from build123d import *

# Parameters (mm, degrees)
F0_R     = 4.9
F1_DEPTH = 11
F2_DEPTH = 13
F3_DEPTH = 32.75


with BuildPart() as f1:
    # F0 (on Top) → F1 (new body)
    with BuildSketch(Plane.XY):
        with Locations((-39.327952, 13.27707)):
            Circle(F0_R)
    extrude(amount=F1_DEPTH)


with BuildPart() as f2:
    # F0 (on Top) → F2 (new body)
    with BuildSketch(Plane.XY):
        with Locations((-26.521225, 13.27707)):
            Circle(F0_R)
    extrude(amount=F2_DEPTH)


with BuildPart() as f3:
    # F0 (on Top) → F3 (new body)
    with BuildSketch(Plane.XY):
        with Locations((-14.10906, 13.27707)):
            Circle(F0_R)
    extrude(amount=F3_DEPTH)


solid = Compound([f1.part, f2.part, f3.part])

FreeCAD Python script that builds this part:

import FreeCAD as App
import Part
import Sketcher

doc = App.newDocument("Part")
body = doc.addObject("PartDesign::Body", "Body")

sketch1 = doc.addObject("Sketcher::SketchObject", "Sketch")
body.addObject(sketch1)
sketch1.AttachmentSupport = (doc.XY_Plane, [""])
sketch1.MapMode = "FlatFace"
sketch1.addGeometry(Part.Circle(App.Vector(-39.327952, 13.27707, 0), App.Vector(0, 0, 1), 4.9), False)
sketch1.addConstraint([
    Sketcher.Constraint("Diameter", 0, 9.8),
    Sketcher.Constraint("DistanceY", -1, 1, 0, 3, 13.27707),
    Sketcher.Constraint("DistanceX", 0, 3, -1, 1, 39.327952),
])
pad1 = doc.addObject("PartDesign::Pad", "Pad")
body.addObject(pad1)
pad1.Profile = sketch1
pad1.Length = 11
body2 = doc.addObject("PartDesign::Body", "Body001")

sketch2 = doc.addObject("Sketcher::SketchObject", "Sketch001")
body2.addObject(sketch2)
sketch2.AttachmentSupport = (doc.getObject("XY_Plane001"), [""])
sketch2.MapMode = "FlatFace"
sketch2.addGeometry(Part.Circle(App.Vector(-26.521225, 13.27707, 0), App.Vector(0, 0, 1), 4.9), False)
sketch2.addConstraint([
    Sketcher.Constraint("Diameter", 0, 9.8),
    Sketcher.Constraint("DistanceY", -1, 1, 0, 3, 13.27707),
    Sketcher.Constraint("DistanceX", 0, 3, -1, 1, 26.521225),
])
pad2 = doc.addObject("PartDesign::Pad", "Pad001")
body2.addObject(pad2)
pad2.Profile = sketch2
pad2.Length = 13
body3 = doc.addObject("PartDesign::Body", "Body002")

sketch3 = doc.addObject("Sketcher::SketchObject", "Sketch002")
body3.addObject(sketch3)
sketch3.AttachmentSupport = (doc.getObject("XY_Plane002"), [""])
sketch3.MapMode = "FlatFace"
sketch3.addGeometry(Part.Circle(App.Vector(-14.10906, 13.27707, 0), App.Vector(0, 0, 1), 4.9), False)
sketch3.addConstraint([
    Sketcher.Constraint("Diameter", 0, 9.8),
    Sketcher.Constraint("DistanceX", 0, 3, -1, 1, 14.10906),
    Sketcher.Constraint("DistanceY", -1, 1, 0, 3, 13.27707),
])
pad3 = doc.addObject("PartDesign::Pad", "Pad002")
body3.addObject(pad3)
pad3.Profile = sketch3
pad3.Length = 32.75

doc.recompute()
